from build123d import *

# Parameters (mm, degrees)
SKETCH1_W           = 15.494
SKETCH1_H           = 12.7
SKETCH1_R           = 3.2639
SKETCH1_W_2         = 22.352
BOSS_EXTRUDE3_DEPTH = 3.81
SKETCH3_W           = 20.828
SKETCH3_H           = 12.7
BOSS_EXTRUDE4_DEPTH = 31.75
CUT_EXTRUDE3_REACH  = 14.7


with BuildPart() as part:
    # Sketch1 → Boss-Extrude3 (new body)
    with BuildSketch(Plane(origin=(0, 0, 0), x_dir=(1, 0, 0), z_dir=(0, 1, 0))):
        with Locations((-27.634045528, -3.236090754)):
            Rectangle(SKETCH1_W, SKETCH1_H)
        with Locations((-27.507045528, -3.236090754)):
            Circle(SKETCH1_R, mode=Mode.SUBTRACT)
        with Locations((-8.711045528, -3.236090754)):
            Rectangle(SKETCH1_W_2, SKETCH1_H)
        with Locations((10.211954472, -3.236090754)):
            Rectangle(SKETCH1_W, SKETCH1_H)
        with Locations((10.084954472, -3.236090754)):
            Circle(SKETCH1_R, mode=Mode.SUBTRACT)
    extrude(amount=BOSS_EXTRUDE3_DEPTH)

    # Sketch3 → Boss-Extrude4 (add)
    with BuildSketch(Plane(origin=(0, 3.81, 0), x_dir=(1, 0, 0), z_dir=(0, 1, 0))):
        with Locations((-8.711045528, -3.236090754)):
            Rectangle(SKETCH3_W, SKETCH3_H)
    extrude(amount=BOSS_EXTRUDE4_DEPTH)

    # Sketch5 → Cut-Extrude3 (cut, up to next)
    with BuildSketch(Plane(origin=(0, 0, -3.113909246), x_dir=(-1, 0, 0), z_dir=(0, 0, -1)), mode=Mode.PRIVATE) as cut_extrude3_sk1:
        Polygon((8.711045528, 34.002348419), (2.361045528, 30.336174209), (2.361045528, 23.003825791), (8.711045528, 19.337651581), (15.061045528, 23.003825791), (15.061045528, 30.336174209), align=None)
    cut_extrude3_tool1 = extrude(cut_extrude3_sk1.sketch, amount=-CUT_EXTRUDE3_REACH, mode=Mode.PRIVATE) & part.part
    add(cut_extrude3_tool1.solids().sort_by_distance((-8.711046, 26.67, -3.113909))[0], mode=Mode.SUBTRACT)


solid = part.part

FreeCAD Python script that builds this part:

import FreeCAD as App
import Part
import Sketcher

V = App.Vector
Q = App.Units.Quantity

doc = App.newDocument("Part")
params = doc.addObject("Spreadsheet::Sheet", "Params")
for row, (alias, value) in enumerate([
    ("sketch1_diameter", "0.257 in"),
    ("sketch1_width", "2.1 in"),
    ("sketch1_height", "0.5 in"),
    ("pad1_length", "0.15 in"),
    ("sketch2_height", "0.5 in"),
    ("sketch2_width", "0.82 in"),
    ("pad2_length", "1.25 in"),
], start=1):
    params.set(f"A{row}", alias)
    params.set(f"B{row}", "=" + value)
    params.setAlias(f"B{row}", alias)

body = doc.addObject("PartDesign::Body", "Body")

sketch1 = body.newObject("Sketcher::SketchObject", "Sketch")
sketch1.AttachmentSupport = (doc.getObject("XZ_Plane"), [""])
sketch1.MapMode = "FlatFace"
sketch1.addGeometry([
    Part.LineSegment(V(-35.4, -3.1, 0), V(-35.4, 9.6, 0)),
    Part.LineSegment(V(-35.4, 9.6, 0), V(18, 9.6, 0)),
    Part.LineSegment(V(18, 9.6, 0), V(18, -3.1, 0)),
    Part.LineSegment(V(18, -3.1, 0), V(-35.4, -3.1, 0)),
    Part.Circle(V(-27.5, 3.2, 0), V(0, 0, 1), 3.3),
    Part.Circle(V(10.1, 3.2, 0), V(0, 0, 1), 3.3),
], False)
sketch1.addConstraint([
    Sketcher.Constraint("Coincident", 0, 2, 1, 1),
    Sketcher.Constraint("Coincident", 1, 2, 2, 1),
    Sketcher.Constraint("Coincident", 2, 2, 3, 1),
    Sketcher.Constraint("Coincident", 3, 2, 0, 1),
    Sketcher.Constraint("Vertical", 0),
    Sketcher.Constraint("Horizontal", 1),
    Sketcher.Constraint("Vertical", 2),
    Sketcher.Constraint("Horizontal", 3),
    Sketcher.Constraint("Equal", 4, 5),
    Sketcher.Constraint("Horizontal", 4, 3, 5, 3),
    Sketcher.Constraint("Diameter", 4, Q("0.257 in")),
    Sketcher.Constraint("DistanceX", 1, 1, 1, 2, Q("2.1 in")),
    Sketcher.Constraint("DistanceY", 0, 1, 0, 2, Q("0.5 in")),
    Sketcher.Constraint("DistanceX", 4, 3, 5, 3, Q("1.48 in")),
    Sketcher.Constraint("DistanceX", 0, 2, 4, 3, Q("0.31 in")),
    Sketcher.Constraint("DistanceY", 4, 3, 0, 2, Q("0.25 in")),
    Sketcher.Constraint("DistanceY", -1, 1, 4, 3, Q("3.236091 mm")),
    Sketcher.Constraint("DistanceX", 4, 3, -1, 1, Q("27.507046 mm")),
])
sketch1.setExpression("Constraints[10]", "Params.sketch1_diameter")
sketch1.setExpression("Constraints[11]", "Params.sketch1_width")
sketch1.setExpression("Constraints[12]", "Params.sketch1_height")
pad1 = body.newObject("PartDesign::Pad", "Pad")
pad1.Profile = sketch1
pad1.setExpression("Length", "Params.pad1_length")
pad1.Reversed = True

sketch2 = body.newObject("Sketcher::SketchObject", "Sketch001")
sketch2.AttachmentSupport = (doc.getObject("XZ_Plane"), [""])
sketch2.MapMode = "FlatFace"
sketch2.AttachmentOffset = App.Placement(V(0, 0, -0.15 * 25.4), App.Rotation())
sketch2.addGeometry([
    Part.LineSegment(V(-19, -3, 0), V(-19, 10, 0)),
    Part.LineSegment(V(-19, 10, 0), V(2, 10, 0)),
    Part.LineSegment(V(2, 10, 0), V(2, -3, 0)),
    Part.LineSegment(V(2, -3, 0), V(-19, -3, 0)),
], False)
sketch2.addConstraint([
    Sketcher.Constraint("Coincident", 0, 2, 1, 1),
    Sketcher.Constraint("Coincident", 1, 2, 2, 1),
    Sketcher.Constraint("Coincident", 2, 2, 3, 1),
    Sketcher.Constraint("Coincident", 3, 2, 0, 1),
    Sketcher.Constraint("Vertical", 0),
    Sketcher.Constraint("Horizontal", 1),
    Sketcher.Constraint("Vertical", 2),
    Sketcher.Constraint("Horizontal", 3),
    Sketcher.Constraint("DistanceY", 0, 1, 0, 2, Q("0.5 in")),
    Sketcher.Constraint("DistanceX", 1, 1, 1, 2, Q("0.82 in")),
    Sketcher.Constraint("DistanceY", -1, 1, 0, 2, Q("9.586091 mm")),
    Sketcher.Constraint("DistanceX", 0, 2, -1, 1, Q("19.125046 mm")),
])
sketch2.setExpression("Constraints[8]", "Params.sketch2_height")
sketch2.setExpression("Constraints[9]", "Params.sketch2_width")
pad2 = body.newObject("PartDesign::Pad", "Pad001")
pad2.Profile = sketch2
pad2.setExpression("Length", "Params.pad2_length")
pad2.Reversed = True

sketch3 = body.newObject("Sketcher::SketchObject", "Sketch002")
sketch3.AttachmentSupport = (doc.getObject("XY_Plane"), [""])
sketch3.MapMode = "FlatFace"
sketch3.AttachmentOffset = App.Placement(V(0, 0, -3.113909), App.Rotation())
sketch3.addGeometry([
    Part.LineSegment(V(-9, 34, 0), V(-2, 30, 0)),
    Part.LineSegment(V(-2, 30, 0), V(-2, 23, 0)),
    Part.LineSegment(V(-2, 23, 0), V(-9, 19, 0)),
    Part.LineSegment(V(-9, 19, 0), V(-15, 23, 0)),
    Part.LineSegment(V(-15, 23, 0), V(-15, 30, 0)),
    Part.LineSegment(V(-15, 30, 0), V(-9, 34, 0)),
], False)
sketch3.addConstraint([
    Sketcher.Constraint("Coincident", 0, 2, 1, 1),
    Sketcher.Constraint("Coincident", 1, 2, 2, 1),
    Sketcher.Constraint("Coincident", 2, 2, 3, 1),
    Sketcher.Constraint("Coincident", 3, 2, 4, 1),
    Sketcher.Constraint("Coincident", 4, 2, 5, 1),
    Sketcher.Constraint("Coincident", 5, 2, 0, 1),
    Sketcher.Constraint("Vertical", 1),
    Sketcher.Constraint("Vertical", 4),
    Sketcher.Constraint("Parallel", 0, 3),
    Sketcher.Constraint("Parallel", 2, 5),
    Sketcher.Constraint("Horizontal", 1, 2, 3, 2),
    Sketcher.Constraint("Horizontal", 0, 2, 4, 2),
    Sketcher.Constraint("Vertical", 2, 2, 5, 2),
    Sketcher.Constraint("Angle", 0, Q("-30 deg")),
    Sketcher.Constraint("DistanceX", 3, 2, 1, 2, Q("0.5 in")),
    Sketcher.Constraint("DistanceY", 1, 2, 1, 1, Q("7.332348 mm")),
    Sketcher.Constraint("DistanceY", -1, 1, 2, 2, Q("19.337652 mm")),
    Sketcher.Constraint("DistanceX", 0, 2, -1, 1, Q("2.361046 mm")),
])
pocket1 = body.newObject("PartDesign::Pocket", "Pocket")
pocket1.Profile = sketch3
pocket1.Type = "UpToFirst"
pocket1.Reversed = True

doc.recompute()
